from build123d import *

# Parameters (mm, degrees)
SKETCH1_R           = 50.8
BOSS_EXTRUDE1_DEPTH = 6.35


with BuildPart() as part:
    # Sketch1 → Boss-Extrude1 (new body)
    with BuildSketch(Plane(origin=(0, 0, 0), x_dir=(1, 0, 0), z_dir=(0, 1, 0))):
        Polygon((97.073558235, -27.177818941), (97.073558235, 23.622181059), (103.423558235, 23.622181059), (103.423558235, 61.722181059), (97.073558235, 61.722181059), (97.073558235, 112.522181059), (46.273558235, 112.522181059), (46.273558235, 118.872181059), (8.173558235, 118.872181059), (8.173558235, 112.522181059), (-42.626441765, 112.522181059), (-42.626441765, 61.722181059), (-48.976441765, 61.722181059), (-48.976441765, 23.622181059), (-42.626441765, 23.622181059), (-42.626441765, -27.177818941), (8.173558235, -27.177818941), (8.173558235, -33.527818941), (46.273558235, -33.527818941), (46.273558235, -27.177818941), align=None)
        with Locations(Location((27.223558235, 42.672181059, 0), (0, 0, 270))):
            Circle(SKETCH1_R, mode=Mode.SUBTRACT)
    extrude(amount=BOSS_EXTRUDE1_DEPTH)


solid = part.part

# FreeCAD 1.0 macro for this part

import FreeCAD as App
import Part
import Sketcher

V = App.Vector
Q = App.Units.Quantity

doc = App.newDocument("Part")
body = doc.addObject("PartDesign::Body", "Body")

# Sketch on XZ plane
sketch1 = body.newObject("Sketcher::SketchObject", "Sketch")
sketch1.AttachmentSupport = (doc.getObject("XZ_Plane"), [""])
sketch1.MapMode = "FlatFace"
sketch1.addGeometry([
    Part.LineSegment(V(97.073558, 27.177819, 0), V(97.073558, -23.622181, 0)),  # 0
    Part.LineSegment(V(97.073558, -23.622181, 0), V(103.423558, -23.622181, 0)),  # 1
    Part.LineSegment(V(103.423558, -23.622181, 0), V(103.423558, -61.722181, 0)),  # 2
    Part.LineSegment(V(103.423558, -61.722181, 0), V(97.073558, -61.722181, 0)),  # 3
    Part.LineSegment(V(97.073558, -61.722181, 0), V(97.073558, -112.522181, 0)),  # 4
    Part.LineSegment(V(97.073558, -112.522181, 0), V(46.273558, -112.522181, 0)),  # 5
    Part.LineSegment(V(46.273558, -112.522181, 0), V(46.273558, -118.872181, 0)),  # 6
    Part.LineSegment(V(46.273558, -118.872181, 0), V(8.173558, -118.872181, 0)),  # 7
    Part.LineSegment(V(8.173558, -118.872181, 0), V(8.173558, -112.522181, 0)),  # 8
    Part.LineSegment(V(8.173558, -112.522181, 0), V(-42.626442, -112.522181, 0)),  # 9
    Part.LineSegment(V(-42.626442, -112.522181, 0), V(-42.626442, -61.722181, 0)),  # 10
    Part.LineSegment(V(-42.626442, -61.722181, 0), V(-48.976442, -61.722181, 0)),  # 11
    Part.LineSegment(V(-48.976442, -61.722181, 0), V(-48.976442, -23.622181, 0)),  # 12
    Part.LineSegment(V(-48.976442, -23.622181, 0), V(-42.626442, -23.622181, 0)),  # 13
    Part.LineSegment(V(-42.626442, -23.622181, 0), V(-42.626442, 27.177819, 0)),  # 14
    Part.LineSegment(V(-42.626442, 27.177819, 0), V(8.173558, 27.177819, 0)),  # 15
    Part.LineSegment(V(8.173558, 27.177819, 0), V(8.173558, 33.527819, 0)),  # 16
    Part.LineSegment(V(8.173558, 33.527819, 0), V(46.273558, 33.527819, 0)),  # 17
    Part.LineSegment(V(46.273558, 33.527819, 0), V(46.273558, 27.177819, 0)),  # 18
    Part.LineSegment(V(46.273558, 27.177819, 0), V(97.073558, 27.177819, 0)),  # 19
    Part.Circle(V(27.223558, -42.672181, 0), V(0, 0, 1), 50.8),  # 20
], False)
sketch1.addConstraint([
    Sketcher.Constraint("Coincident", 0, 2, 1, 1),
    Sketcher.Constraint("Coincident", 1, 2, 2, 1),
    Sketcher.Constraint("Coincident", 2, 2, 3, 1),
    Sketcher.Constraint("Coincident", 3, 2, 4, 1),
    Sketcher.Constraint("Coincident", 4, 2, 5, 1),
    Sketcher.Constraint("Coincident", 5, 2, 6, 1),
    Sketcher.Constraint("Coincident", 6, 2, 7, 1),
    Sketcher.Constraint("Coincident", 7, 2, 8, 1),
    Sketcher.Constraint("Coincident", 8, 2, 9, 1),
    Sketcher.Constraint("Coincident", 9, 2, 10, 1),
    Sketcher.Constraint("Coincident", 10, 2, 11, 1),
    Sketcher.Constraint("Coincident", 11, 2, 12, 1),
    Sketcher.Constraint("Coincident", 12, 2, 13, 1),
    Sketcher.Constraint("Coincident", 13, 2, 14, 1),
    Sketcher.Constraint("Coincident", 14, 2, 15, 1),
    Sketcher.Constraint("Coincident", 15, 2, 16, 1),
    Sketcher.Constraint("Coincident", 16, 2, 17, 1),
    Sketcher.Constraint("Coincident", 17, 2, 18, 1),
    Sketcher.Constraint("Coincident", 18, 2, 19, 1),
    Sketcher.Constraint("Coincident", 19, 2, 0, 1),
    Sketcher.Constraint("Vertical", 0),
    Sketcher.Constraint("Horizontal", 1),
    Sketcher.Constraint("Vertical", 2),
    Sketcher.Constraint("Horizontal", 3),
    Sketcher.Constraint("Vertical", 4),
    Sketcher.Constraint("Horizontal", 5),
    Sketcher.Constraint("Vertical", 6),
    Sketcher.Constraint("Horizontal", 7),
    Sketcher.Constraint("Vertical", 8),
    Sketcher.Constraint("Horizontal", 9),
    Sketcher.Constraint("Vertical", 10),
    Sketcher.Constraint("Horizontal", 11),
    Sketcher.Constraint("Vertical", 12),
    Sketcher.Constraint("Horizontal", 13),
    Sketcher.Constraint("Vertical", 14),
    Sketcher.Constraint("Horizontal", 15),
    Sketcher.Constraint("Vertical", 16),
    Sketcher.Constraint("Horizontal", 17),
    Sketcher.Constraint("Vertical", 18),
    Sketcher.Constraint("Horizontal", 19),
    Sketcher.Constraint("Horizontal", 5, 2, 8, 2),
    Sketcher.Constraint("Horizontal", 3, 2, 10, 2),
    Sketcher.Constraint("Horizontal", 1, 2, 12, 2),
    Sketcher.Constraint("Horizontal", 15, 2, 18, 2),
    Sketcher.Constraint("Vertical", 0, 2, 3, 2),
    Sketcher.Constraint("Vertical", 10, 2, 13, 2),
    Sketcher.Constraint("Vertical", 8, 2, 15, 2),
    Sketcher.Constraint("Vertical", 6, 2, 17, 2),
    Sketcher.Constraint("Equal", 5, 9),
    Sketcher.Constraint("Equal", 3, 11),
    Sketcher.Constraint("Equal", 19, 0),
    Sketcher.Constraint("Equal", 17, 2),
    Sketcher.Constraint("Equal", 0, 4),
    Sketcher.Constraint("Equal", 13, 6),
    Sketcher.Constraint("Equal", 8, 16),
    Sketcher.Constraint("Diameter", 20, Q("4 in")),
    Sketcher.Constraint("DistanceX", 5, 2, 5, 1, Q("2 in")),
    Sketcher.Constraint("DistanceX", 7, 2, 7, 1, Q("1.5 in")),
    Sketcher.Constraint("DistanceX", 20, 3, 1, 2, Q("3 in")),
    Sketcher.Constraint("DistanceY", 6, 2, 20, 3, Q("3 in")),
    Sketcher.Constraint("DistanceX", 11, 2, 20, 3, Q("3 in")),
    Sketcher.Constraint("DistanceX", -1, 1, 20, 3, 27.223558),
    Sketcher.Constraint("DistanceY", 20, 3, -1, 1, 42.672181),
])
pad1 = body.newObject("PartDesign::Pad", "Pad")
pad1.Profile = sketch1
pad1.Length = Q("0.25 in")
pad1.Reversed = True

doc.recompute()
